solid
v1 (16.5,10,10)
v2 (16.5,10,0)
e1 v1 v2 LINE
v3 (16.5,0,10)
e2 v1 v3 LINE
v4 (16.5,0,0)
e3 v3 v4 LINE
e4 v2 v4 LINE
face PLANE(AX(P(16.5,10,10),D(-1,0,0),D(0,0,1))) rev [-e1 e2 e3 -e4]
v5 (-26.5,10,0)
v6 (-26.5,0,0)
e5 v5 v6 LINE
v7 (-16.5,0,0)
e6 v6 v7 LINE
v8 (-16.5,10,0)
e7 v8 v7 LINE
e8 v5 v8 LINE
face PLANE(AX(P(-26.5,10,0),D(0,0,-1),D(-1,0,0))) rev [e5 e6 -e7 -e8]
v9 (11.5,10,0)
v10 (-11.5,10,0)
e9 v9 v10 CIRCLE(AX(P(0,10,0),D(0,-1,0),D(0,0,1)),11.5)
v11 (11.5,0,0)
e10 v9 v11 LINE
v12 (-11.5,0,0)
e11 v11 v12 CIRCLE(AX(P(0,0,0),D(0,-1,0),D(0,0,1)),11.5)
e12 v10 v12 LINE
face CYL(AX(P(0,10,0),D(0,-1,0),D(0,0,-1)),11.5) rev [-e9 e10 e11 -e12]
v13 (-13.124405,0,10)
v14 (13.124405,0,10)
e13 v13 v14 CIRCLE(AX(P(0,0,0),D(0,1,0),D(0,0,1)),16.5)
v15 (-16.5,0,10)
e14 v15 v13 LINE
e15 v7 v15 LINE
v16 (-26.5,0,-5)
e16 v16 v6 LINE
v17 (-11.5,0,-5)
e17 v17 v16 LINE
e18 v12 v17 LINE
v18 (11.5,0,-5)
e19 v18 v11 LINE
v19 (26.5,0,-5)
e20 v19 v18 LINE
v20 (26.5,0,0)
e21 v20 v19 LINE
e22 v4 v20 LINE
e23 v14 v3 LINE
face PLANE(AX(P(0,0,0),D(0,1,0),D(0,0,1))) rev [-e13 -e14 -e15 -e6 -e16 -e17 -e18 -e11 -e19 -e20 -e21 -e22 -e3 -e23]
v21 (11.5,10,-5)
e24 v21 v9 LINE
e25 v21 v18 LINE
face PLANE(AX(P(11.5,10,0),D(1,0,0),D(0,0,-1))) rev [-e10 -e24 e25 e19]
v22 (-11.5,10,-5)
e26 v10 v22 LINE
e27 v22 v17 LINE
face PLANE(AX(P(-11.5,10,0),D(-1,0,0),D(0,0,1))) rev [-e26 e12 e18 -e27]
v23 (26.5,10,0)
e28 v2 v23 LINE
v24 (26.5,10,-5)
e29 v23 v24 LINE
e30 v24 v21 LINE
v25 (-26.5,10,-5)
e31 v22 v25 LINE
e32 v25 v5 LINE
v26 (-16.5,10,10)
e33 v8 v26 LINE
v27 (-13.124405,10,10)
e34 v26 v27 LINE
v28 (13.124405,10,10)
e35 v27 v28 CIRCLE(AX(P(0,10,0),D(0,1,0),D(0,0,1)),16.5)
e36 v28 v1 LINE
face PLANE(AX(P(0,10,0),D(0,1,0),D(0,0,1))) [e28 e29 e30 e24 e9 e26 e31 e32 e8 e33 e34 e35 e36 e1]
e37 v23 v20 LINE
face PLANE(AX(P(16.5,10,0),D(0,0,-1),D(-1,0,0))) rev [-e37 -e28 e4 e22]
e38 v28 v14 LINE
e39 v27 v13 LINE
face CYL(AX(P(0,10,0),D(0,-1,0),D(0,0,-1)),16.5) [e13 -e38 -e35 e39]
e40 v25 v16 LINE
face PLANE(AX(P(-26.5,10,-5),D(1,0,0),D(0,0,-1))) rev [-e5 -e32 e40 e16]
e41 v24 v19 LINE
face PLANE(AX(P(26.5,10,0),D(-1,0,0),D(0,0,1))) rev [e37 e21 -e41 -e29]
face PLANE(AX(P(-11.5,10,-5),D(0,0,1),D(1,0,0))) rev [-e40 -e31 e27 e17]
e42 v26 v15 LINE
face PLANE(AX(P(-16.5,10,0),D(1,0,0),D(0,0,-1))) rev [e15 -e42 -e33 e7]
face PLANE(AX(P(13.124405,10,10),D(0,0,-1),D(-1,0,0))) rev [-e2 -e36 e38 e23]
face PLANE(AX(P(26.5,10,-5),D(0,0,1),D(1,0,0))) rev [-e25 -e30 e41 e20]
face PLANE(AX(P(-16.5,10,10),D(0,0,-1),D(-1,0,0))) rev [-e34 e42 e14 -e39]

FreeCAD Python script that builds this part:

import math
import FreeCAD as App
import Part
import Sketcher
Q = App.Units.Quantity

doc = App.newDocument("Part")
body = doc.addObject("PartDesign::Body", "Body")

# Sketch on XZ plane
sketch1 = body.newObject("Sketcher::SketchObject", "Sketch")
sketch1.AttachmentSupport = (doc.getObject("XZ_Plane"), [""])
sketch1.MapMode = "FlatFace"
sketch1.addGeometry([
    Part.LineSegment(App.Vector(-16.5, 0, 0), App.Vector(-16.5, 10, 0)),  # 0
    Part.LineSegment(App.Vector(-16.5, 10, 0), App.Vector(-13.1, 10, 0)),  # 1
    Part.ArcOfCircle(Part.Circle(App.Vector(0, 0, 0), App.Vector(0, 0, 1), 16.5), math.radians(37), math.radians(143)),  # 2
    Part.LineSegment(App.Vector(13.1, 10, 0), App.Vector(16.5, 10, 0)),  # 3
    Part.LineSegment(App.Vector(16.5, 10, 0), App.Vector(16.5, 0, 0)),  # 4
    Part.LineSegment(App.Vector(16.5, 0, 0), App.Vector(26.5, 0, 0)),  # 5
    Part.LineSegment(App.Vector(26.5, 0, 0), App.Vector(26.5, -5, 0)),  # 6
    Part.LineSegment(App.Vector(26.5, -5, 0), App.Vector(11.5, -5, 0)),  # 7
    Part.LineSegment(App.Vector(11.5, -5, 0), App.Vector(11.5, 0, 0)),  # 8
    Part.ArcOfCircle(Part.Circle(App.Vector(0, 0, 0), App.Vector(0, 0, 1), 11.5), math.radians(0), math.radians(180)),  # 9
    Part.LineSegment(App.Vector(-11.5, 0, 0), App.Vector(-11.5, -5, 0)),  # 10
    Part.LineSegment(App.Vector(-11.5, -5, 0), App.Vector(-26.5, -5, 0)),  # 11
    Part.LineSegment(App.Vector(-26.5, -5, 0), App.Vector(-26.5, 0, 0)),  # 12
    Part.LineSegment(App.Vector(-26.5, 0, 0), App.Vector(-16.5, 0, 0)),  # 13
], False)
sketch1.addConstraint([
    Sketcher.Constraint("Coincident", 0, 2, 1, 1),
    Sketcher.Constraint("Coincident", 1, 2, 2, 2),
    Sketcher.Constraint("Coincident", 2, 1, 3, 1),
    Sketcher.Constraint("Coincident", 3, 2, 4, 1),
    Sketcher.Constraint("Coincident", 4, 2, 5, 1),
    Sketcher.Constraint("Coincident", 5, 2, 6, 1),
    Sketcher.Constraint("Coincident", 6, 2, 7, 1),
    Sketcher.Constraint("Coincident", 7, 2, 8, 1),
    Sketcher.Constraint("Tangent", 8, 2, 9, 1),
    Sketcher.Constraint("Tangent", 9, 2, 10, 1),
    Sketcher.Constraint("Coincident", 10, 2, 11, 1),
    Sketcher.Constraint("Coincident", 11, 2, 12, 1),
    Sketcher.Constraint("Coincident", 12, 2, 13, 1),
    Sketcher.Constraint("Coincident", 13, 2, 0, 1),
    Sketcher.Constraint("Vertical", 0),
    Sketcher.Constraint("Horizontal", 1),
    Sketcher.Constraint("Horizontal", 3),
    Sketcher.Constraint("Vertical", 4),
    Sketcher.Constraint("Horizontal", 5),
    Sketcher.Constraint("Vertical", 6),
    Sketcher.Constraint("Horizontal", 7),
    Sketcher.Constraint("Vertical", 8),
    Sketcher.Constraint("Vertical", 10),
    Sketcher.Constraint("Horizontal", 11),
    Sketcher.Constraint("Vertical", 12),
    Sketcher.Constraint("Horizontal", 13),
    Sketcher.Constraint("Coincident", 2, 3, -1, 1),
    Sketcher.Constraint("Coincident", 9, 3, -1, 1),
    Sketcher.Constraint("Symmetric", 5, 2, 12, 2, -1, 1),
    Sketcher.Constraint("Symmetric", 0, 2, 3, 2, -2),
    Sketcher.Constraint("PointOnObject", 4, 2, -1),
    Sketcher.Constraint("Horizontal", 7, 2, 10, 2),
    Sketcher.Constraint("Equal", 13, 0),
    Sketcher.Constraint("Radius", 2, Q("16.5 mm")),
    Sketcher.Constraint("Radius", 9, Q("11.5 mm")),
    Sketcher.Constraint("DistanceX", 5, 1, 5, 2, Q("10 mm")),
    Sketcher.Constraint("DistanceX", 7, 2, 7, 1, Q("15 mm")),
    Sketcher.Constraint("DistanceY", 6, 2, 6, 1, Q("5 mm")),
])
pad1 = body.newObject("PartDesign::Pad", "Pad")
pad1.Profile = sketch1
pad1.Length = 10
pad1.Reversed = True

doc.recompute()
